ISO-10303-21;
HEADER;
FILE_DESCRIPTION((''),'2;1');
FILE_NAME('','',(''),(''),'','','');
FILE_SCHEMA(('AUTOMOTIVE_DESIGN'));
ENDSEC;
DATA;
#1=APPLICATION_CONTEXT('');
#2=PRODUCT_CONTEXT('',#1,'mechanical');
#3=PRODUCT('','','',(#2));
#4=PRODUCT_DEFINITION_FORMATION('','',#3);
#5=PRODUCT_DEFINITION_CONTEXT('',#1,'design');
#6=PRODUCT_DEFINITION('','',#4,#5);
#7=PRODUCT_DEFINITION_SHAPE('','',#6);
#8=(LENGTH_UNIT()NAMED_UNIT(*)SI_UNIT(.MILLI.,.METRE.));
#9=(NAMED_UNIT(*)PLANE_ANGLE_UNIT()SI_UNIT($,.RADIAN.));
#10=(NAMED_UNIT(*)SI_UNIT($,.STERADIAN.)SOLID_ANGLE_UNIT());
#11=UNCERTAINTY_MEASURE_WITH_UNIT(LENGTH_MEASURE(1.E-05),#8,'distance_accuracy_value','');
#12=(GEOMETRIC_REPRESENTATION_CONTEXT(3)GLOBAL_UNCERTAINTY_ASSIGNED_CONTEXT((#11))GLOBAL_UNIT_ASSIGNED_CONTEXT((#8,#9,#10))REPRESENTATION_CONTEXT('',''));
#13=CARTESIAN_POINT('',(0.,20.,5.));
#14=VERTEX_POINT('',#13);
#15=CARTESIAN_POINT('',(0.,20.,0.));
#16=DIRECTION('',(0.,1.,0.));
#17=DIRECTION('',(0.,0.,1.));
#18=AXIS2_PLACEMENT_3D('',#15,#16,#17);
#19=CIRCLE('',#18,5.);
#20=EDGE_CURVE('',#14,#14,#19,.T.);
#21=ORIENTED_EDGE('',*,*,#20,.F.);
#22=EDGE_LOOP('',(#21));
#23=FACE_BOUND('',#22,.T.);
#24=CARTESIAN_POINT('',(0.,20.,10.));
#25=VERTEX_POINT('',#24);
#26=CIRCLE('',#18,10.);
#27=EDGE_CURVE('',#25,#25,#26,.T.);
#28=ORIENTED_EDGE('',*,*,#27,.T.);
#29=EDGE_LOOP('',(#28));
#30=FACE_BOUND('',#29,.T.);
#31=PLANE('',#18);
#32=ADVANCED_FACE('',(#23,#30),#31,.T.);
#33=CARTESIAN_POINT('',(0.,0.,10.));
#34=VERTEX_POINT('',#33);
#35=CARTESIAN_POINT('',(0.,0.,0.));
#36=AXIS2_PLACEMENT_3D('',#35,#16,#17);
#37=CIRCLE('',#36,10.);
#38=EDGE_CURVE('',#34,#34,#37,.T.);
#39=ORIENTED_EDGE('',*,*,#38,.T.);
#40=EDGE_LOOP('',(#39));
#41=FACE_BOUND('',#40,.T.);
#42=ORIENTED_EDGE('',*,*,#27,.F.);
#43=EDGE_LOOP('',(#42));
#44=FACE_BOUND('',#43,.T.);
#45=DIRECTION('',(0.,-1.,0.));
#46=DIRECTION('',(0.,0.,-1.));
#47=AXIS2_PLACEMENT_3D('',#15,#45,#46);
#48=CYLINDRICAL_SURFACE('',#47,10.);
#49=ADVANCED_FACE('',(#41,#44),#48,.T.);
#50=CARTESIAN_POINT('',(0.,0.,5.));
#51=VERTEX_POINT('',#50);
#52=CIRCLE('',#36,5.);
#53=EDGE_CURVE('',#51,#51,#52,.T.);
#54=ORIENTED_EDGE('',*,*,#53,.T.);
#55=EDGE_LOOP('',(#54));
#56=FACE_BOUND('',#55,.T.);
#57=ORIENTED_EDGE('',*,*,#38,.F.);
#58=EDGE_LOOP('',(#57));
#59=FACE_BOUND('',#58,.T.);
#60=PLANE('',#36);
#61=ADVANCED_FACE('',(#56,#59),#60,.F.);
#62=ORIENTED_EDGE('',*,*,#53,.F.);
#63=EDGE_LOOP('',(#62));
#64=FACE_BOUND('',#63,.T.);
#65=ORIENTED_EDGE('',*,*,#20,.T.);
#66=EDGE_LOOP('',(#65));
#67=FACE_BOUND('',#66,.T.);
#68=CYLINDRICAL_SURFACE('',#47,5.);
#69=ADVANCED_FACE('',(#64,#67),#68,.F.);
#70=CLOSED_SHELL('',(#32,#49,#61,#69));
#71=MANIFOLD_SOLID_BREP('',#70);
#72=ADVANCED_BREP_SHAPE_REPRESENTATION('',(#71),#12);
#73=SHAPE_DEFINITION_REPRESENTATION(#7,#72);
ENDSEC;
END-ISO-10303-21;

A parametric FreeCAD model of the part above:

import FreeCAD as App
import Part
import Sketcher

V = App.Vector

doc = App.newDocument("Part")
body = doc.addObject("PartDesign::Body", "Body")

# Sketch on XZ plane
sketch1 = body.newObject("Sketcher::SketchObject", "Sketch")
sketch1.AttachmentSupport = (doc.getObject("XZ_Plane"), [""])
sketch1.MapMode = "FlatFace"
sketch1.addGeometry([
    Part.Circle(V(0, 0, 0), V(0, 0, 1), 10),
    Part.Circle(V(0, 0, 0), V(0, 0, 1), 5),
], False)
sketch1.addConstraint([
    Sketcher.Constraint("Coincident", 0, 3, -1, 1),
    Sketcher.Constraint("Coincident", 1, 3, -1, 1),
    Sketcher.Constraint("Diameter", 0, 20.0),
    Sketcher.Constraint("Diameter", 1, 10.0),
])
pad1 = body.newObject("PartDesign::Pad", "Pad")
pad1.Profile = sketch1
pad1.Length = 20
pad1.Reversed = True

doc.recompute()
